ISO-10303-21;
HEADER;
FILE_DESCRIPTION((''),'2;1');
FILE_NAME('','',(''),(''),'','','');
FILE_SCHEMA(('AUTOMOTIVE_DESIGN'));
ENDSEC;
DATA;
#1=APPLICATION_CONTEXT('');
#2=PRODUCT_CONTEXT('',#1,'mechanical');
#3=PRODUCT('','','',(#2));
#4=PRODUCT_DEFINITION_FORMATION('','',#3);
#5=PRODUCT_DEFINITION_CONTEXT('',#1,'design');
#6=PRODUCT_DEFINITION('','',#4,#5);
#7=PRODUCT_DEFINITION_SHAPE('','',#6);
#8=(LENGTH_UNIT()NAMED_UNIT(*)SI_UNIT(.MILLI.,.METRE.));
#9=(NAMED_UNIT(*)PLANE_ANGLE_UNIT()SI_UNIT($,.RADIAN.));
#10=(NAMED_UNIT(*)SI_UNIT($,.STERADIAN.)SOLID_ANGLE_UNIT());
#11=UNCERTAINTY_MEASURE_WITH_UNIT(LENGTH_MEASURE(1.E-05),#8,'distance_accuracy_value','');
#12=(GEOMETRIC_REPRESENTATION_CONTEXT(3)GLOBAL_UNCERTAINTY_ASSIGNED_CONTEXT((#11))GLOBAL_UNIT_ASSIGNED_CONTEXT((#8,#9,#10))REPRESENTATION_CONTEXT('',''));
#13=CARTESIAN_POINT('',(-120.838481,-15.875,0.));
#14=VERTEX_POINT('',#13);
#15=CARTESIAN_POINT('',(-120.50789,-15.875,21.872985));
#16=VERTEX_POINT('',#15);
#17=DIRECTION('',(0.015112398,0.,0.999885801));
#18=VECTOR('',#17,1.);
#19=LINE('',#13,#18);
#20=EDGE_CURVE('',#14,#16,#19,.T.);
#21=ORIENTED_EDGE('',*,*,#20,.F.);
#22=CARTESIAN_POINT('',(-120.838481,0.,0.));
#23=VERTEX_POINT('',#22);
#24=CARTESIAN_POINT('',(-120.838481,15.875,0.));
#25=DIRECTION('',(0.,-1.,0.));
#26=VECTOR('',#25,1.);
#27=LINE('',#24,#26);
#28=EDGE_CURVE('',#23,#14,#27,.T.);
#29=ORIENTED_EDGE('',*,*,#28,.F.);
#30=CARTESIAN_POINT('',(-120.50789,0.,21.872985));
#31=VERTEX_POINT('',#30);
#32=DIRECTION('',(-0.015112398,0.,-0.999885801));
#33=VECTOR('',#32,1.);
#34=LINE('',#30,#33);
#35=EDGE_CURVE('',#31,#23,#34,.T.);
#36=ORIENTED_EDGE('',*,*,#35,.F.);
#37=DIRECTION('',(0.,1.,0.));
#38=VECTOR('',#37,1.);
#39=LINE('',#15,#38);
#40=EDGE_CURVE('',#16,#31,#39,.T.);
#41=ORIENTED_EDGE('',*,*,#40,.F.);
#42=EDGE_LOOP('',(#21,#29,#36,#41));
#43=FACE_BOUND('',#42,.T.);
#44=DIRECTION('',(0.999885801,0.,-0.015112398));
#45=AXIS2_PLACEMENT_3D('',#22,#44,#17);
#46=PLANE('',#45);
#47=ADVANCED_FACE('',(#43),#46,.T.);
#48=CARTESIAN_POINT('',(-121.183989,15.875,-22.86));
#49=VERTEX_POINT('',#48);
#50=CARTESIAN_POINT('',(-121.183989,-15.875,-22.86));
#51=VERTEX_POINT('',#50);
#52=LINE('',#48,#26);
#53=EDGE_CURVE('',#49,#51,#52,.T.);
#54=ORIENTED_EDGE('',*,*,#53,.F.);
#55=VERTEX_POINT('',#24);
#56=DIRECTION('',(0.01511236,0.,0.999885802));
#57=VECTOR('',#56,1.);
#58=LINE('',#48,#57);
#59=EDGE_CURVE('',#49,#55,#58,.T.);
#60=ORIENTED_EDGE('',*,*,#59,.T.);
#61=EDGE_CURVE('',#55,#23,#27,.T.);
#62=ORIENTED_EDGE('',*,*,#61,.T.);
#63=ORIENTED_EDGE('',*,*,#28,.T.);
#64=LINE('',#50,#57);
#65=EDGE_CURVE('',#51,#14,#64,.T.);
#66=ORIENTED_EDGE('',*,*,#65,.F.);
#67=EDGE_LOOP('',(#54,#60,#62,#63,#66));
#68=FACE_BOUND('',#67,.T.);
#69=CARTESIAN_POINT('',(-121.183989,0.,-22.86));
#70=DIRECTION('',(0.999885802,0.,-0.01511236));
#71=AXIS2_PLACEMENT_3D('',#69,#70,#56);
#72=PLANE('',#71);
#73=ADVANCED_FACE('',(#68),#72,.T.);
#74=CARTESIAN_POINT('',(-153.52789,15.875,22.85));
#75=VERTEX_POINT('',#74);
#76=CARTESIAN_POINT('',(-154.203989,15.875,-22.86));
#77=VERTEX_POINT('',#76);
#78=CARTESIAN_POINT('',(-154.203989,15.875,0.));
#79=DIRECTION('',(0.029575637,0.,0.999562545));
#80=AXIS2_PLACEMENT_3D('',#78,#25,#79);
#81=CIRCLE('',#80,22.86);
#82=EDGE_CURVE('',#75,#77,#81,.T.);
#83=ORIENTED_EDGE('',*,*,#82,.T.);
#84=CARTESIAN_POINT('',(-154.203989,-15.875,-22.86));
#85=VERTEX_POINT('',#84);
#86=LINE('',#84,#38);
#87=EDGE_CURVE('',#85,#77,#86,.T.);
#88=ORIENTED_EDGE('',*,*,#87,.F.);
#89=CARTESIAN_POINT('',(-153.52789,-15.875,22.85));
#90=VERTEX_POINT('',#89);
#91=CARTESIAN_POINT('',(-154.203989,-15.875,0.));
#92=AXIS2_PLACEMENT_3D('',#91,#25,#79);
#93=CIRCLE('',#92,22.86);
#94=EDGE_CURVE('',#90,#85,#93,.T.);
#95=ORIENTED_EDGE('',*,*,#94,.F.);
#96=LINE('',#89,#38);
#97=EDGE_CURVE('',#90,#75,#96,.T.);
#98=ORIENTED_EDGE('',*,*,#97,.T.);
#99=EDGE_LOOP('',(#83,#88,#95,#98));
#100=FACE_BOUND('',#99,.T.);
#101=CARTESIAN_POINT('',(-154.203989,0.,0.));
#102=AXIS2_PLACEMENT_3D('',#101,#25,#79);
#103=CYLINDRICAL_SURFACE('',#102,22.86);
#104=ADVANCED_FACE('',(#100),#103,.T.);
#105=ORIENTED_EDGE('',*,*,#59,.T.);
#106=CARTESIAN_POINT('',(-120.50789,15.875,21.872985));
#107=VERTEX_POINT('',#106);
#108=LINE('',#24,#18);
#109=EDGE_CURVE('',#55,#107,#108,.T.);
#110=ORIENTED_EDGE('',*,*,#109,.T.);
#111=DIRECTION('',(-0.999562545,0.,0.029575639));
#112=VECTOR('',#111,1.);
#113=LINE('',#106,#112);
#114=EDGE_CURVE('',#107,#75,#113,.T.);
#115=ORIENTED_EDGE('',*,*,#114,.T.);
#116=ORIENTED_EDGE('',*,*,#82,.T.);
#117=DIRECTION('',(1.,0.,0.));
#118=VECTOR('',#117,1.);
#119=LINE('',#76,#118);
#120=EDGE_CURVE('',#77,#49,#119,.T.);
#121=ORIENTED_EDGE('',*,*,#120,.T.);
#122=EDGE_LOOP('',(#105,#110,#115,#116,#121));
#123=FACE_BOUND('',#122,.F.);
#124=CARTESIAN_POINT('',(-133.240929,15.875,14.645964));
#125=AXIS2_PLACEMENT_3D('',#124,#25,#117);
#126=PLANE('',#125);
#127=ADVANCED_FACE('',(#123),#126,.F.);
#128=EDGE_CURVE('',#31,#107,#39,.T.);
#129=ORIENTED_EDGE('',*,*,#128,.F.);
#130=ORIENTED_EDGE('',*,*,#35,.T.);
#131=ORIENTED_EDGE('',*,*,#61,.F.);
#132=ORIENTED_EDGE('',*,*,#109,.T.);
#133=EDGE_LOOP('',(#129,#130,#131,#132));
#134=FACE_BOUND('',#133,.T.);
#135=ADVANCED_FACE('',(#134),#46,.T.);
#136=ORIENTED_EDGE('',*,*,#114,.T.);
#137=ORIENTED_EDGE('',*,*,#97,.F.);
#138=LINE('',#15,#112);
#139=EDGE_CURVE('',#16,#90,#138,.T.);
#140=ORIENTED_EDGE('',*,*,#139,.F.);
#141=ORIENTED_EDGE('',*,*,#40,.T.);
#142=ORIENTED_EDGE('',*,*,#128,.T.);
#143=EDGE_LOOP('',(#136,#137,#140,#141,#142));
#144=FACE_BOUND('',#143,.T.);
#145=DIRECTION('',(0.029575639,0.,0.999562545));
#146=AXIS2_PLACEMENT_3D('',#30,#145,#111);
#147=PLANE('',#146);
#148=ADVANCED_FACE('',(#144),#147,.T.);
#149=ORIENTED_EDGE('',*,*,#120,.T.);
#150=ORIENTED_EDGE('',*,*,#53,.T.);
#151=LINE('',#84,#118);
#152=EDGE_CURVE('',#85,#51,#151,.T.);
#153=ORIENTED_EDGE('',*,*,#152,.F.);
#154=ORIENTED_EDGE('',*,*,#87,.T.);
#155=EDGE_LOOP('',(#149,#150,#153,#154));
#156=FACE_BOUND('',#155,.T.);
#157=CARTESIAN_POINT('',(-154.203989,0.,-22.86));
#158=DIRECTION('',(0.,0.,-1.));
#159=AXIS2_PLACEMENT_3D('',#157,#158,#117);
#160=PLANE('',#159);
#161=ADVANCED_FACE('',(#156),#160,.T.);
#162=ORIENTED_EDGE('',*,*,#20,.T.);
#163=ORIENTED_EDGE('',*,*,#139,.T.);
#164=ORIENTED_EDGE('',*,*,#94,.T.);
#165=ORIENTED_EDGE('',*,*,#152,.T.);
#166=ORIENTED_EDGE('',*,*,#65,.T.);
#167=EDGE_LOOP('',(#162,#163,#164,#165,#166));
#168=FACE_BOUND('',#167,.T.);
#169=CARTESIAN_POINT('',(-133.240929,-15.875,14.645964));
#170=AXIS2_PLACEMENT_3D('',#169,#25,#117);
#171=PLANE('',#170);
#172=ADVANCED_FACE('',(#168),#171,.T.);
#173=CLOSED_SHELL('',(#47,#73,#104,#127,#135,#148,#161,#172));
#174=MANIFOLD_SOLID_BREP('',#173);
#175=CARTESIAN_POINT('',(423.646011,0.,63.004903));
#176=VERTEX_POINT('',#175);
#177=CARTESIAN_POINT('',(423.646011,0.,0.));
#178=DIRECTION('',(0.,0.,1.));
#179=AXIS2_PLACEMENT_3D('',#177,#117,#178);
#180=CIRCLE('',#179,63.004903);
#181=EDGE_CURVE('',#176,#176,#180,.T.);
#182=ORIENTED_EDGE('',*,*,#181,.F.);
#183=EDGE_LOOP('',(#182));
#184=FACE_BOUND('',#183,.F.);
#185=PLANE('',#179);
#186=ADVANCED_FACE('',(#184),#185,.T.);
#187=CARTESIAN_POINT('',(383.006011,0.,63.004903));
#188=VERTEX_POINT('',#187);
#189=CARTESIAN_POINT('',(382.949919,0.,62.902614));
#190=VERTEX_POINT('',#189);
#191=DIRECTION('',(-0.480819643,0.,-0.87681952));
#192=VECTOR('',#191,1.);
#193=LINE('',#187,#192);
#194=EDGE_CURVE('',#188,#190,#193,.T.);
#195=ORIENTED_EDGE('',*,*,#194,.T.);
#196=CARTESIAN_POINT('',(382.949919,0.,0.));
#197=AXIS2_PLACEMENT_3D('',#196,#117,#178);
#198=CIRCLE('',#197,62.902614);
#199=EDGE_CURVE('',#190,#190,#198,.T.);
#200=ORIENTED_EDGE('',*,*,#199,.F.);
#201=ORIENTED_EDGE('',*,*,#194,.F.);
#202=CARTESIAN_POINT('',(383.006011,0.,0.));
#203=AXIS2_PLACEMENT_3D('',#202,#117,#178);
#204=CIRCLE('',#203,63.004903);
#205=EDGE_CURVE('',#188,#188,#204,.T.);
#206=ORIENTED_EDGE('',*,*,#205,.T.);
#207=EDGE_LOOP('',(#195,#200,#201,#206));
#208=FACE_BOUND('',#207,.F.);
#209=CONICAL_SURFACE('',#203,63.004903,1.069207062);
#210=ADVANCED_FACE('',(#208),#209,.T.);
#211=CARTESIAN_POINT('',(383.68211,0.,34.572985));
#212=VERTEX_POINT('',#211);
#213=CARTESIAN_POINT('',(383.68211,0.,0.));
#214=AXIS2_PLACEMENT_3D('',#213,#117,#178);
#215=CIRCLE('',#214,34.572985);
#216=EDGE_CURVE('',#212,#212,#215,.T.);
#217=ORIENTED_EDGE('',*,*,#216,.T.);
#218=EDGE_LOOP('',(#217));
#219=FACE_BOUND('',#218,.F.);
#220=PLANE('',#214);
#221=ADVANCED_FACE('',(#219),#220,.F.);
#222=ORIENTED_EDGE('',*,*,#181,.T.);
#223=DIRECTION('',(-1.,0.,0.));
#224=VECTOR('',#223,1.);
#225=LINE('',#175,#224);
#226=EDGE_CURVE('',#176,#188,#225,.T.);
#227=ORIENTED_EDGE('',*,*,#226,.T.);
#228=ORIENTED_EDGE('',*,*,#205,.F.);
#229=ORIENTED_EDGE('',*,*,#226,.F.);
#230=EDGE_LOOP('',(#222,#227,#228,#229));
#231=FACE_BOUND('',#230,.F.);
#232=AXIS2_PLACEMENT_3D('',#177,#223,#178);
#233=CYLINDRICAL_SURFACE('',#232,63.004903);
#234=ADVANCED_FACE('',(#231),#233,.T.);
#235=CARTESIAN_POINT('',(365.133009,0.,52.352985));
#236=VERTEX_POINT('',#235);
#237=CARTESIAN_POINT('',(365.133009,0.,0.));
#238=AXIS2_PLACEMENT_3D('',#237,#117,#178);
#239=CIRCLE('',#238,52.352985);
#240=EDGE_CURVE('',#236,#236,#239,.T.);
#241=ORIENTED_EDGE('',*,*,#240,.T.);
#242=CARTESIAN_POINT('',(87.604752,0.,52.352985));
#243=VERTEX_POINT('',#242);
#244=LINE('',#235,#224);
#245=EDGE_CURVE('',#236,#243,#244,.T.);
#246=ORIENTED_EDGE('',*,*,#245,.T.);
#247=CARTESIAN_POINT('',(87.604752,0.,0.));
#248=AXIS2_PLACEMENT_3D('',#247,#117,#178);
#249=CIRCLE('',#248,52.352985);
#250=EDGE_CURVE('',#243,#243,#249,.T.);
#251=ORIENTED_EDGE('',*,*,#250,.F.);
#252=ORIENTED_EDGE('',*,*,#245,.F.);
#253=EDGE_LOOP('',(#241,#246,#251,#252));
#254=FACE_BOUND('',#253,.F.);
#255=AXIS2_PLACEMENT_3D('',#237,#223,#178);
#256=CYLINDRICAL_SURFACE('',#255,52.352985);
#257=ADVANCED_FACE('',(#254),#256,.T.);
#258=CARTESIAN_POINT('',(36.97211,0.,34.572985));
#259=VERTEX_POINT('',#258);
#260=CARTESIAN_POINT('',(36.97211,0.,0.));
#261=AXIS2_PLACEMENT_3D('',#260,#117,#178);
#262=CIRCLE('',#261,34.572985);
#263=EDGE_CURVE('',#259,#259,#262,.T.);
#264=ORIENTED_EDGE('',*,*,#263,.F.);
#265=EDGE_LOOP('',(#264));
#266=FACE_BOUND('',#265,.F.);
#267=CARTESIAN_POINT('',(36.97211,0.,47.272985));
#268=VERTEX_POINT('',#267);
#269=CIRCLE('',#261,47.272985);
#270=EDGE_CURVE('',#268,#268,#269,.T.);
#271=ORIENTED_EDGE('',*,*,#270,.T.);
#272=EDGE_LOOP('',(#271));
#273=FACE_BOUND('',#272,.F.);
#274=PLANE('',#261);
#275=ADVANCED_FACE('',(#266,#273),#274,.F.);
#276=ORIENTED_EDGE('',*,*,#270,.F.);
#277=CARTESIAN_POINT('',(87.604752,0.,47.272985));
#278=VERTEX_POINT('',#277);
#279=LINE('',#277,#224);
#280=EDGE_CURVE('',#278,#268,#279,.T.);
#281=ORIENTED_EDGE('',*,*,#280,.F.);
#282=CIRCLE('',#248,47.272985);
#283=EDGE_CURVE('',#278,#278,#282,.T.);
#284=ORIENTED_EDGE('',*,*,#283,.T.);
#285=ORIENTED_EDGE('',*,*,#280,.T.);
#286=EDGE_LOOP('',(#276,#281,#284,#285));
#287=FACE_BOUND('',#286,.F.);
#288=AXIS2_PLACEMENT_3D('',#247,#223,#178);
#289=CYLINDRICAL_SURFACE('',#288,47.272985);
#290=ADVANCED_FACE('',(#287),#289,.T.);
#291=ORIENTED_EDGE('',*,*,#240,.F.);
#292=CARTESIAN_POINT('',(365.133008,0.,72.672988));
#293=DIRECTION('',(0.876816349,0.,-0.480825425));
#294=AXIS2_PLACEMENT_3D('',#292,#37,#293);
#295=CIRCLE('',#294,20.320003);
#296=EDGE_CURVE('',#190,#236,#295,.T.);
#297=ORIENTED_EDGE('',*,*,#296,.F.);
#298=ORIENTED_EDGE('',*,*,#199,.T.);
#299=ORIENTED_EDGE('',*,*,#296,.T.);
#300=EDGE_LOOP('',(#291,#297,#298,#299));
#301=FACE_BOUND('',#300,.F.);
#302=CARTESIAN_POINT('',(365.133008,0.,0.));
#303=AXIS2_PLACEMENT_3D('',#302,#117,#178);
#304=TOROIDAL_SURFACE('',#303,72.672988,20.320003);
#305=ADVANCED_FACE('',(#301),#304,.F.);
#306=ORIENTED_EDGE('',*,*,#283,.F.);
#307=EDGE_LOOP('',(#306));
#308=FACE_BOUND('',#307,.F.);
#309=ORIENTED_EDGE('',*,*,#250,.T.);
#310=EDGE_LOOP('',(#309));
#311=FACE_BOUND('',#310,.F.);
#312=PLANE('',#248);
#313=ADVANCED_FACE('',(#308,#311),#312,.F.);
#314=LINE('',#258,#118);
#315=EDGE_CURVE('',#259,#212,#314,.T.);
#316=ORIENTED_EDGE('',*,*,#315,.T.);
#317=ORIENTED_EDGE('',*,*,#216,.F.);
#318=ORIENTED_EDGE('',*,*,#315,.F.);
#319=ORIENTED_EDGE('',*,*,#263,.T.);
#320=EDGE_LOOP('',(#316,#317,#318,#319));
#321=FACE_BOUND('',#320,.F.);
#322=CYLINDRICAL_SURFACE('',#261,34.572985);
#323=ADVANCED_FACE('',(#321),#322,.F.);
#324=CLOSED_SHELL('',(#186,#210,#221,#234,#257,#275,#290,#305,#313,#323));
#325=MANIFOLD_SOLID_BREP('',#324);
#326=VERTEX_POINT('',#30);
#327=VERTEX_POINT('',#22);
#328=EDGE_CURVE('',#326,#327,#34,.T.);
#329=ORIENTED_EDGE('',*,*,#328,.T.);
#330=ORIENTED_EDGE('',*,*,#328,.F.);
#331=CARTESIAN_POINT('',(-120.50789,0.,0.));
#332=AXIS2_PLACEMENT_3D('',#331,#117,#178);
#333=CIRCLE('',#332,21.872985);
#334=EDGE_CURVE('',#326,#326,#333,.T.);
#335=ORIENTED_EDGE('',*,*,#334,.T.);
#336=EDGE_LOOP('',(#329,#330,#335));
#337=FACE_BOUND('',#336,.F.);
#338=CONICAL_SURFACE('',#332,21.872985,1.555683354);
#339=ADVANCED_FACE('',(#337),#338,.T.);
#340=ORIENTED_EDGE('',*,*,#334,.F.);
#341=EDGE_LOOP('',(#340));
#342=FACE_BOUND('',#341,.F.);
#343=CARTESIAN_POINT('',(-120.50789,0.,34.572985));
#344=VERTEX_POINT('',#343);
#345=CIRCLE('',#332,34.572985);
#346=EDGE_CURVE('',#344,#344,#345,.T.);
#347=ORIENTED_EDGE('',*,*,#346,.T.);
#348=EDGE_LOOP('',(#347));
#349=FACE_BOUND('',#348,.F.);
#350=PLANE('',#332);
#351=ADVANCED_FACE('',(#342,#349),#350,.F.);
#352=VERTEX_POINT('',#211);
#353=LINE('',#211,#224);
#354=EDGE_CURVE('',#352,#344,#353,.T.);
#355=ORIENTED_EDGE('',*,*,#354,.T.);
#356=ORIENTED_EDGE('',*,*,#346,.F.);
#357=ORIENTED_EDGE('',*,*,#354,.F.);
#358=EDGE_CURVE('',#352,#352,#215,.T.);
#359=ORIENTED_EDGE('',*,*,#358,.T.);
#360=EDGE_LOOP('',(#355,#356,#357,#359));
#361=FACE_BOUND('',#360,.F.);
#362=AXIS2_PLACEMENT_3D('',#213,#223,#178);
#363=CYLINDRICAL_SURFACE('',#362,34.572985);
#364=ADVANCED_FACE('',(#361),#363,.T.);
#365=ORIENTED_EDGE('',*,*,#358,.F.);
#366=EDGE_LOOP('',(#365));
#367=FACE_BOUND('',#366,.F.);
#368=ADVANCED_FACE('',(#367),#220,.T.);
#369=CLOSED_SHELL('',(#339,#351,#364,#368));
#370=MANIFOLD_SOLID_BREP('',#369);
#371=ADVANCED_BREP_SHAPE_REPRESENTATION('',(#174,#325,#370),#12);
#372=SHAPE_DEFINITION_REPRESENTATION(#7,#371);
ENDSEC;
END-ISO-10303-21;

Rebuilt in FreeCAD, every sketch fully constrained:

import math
import FreeCAD as App
import Part
import Sketcher
from FreeCAD import Vector
Q = App.Units.Quantity


def add_polygon(sketch, points):
    """Adds a closed chain of lines whose ends are joined by coincident constraints."""
    first, n = sketch.GeometryCount, len(points)
    for a, b in zip(points, points[1:] + points[:1]):
        sketch.addGeometry(Part.LineSegment(App.Vector(*a, 0), App.Vector(*b, 0)), False)
    for i in range(n):
        sketch.addConstraint(Sketcher.Constraint("Coincident", first + i, 2, first + (i + 1) % n, 1))

doc = App.newDocument("Part")
params = doc.addObject("Spreadsheet::Sheet", "Params")
for row, (alias, value) in enumerate([
    ("sketch1_radius", "0.8000001 in"),
    ("sketch1_width", "1.6 in"),
    ("sketch1_height", "0.2 in"),
    ("sketch1_height2", "0.5 in"),
    ("sketch1_width2", "13.65 in"),
    ("revolution_angle", "360 deg"),
    ("sketch2_height", "0.5 in"),
    ("sketch2_width", "19.85 in"),
    ("revolution2_angle", "360 deg"),
    ("sketch3_radius", "0.9 in"),
    ("sketch3_width", "1.3 in"),
    ("pad1_length", "1.25 in"),
], start=1):
    params.set(f"A{row}", alias)
    params.set(f"B{row}", "=" + value)
    params.setAlias(f"B{row}", alias)

body = doc.addObject("PartDesign::Body", "Body")

sketch1 = body.newObject("Sketcher::SketchObject", "Sketch")
sketch1.AttachmentSupport = (doc.getObject("XZ_Plane"), [""])
sketch1.MapMode = "FlatFace"
sketch1.addGeometry([
    Part.LineSegment(Vector(383.68211, 34.572985, 0), Vector(383.68211, 0, 0)),
    Part.LineSegment(Vector(383.68211, 0, 0), Vector(423.646011, 0, 0)),
    Part.LineSegment(Vector(423.646011, 0, 0), Vector(423.646011, 63.004903, 0)),
    Part.LineSegment(Vector(423.646011, 63.004903, 0), Vector(383.006011, 63.004903, 0)),
    Part.LineSegment(Vector(383.006011, 63.004903, 0), Vector(382.949919, 62.902614, 0)),
    Part.ArcOfCircle(Part.Circle(Vector(365.133008, 72.672988, 0), Vector(0, 0, 1), 20.320003), math.radians(-89.999997), math.radians(-28.739326)),
    Part.LineSegment(Vector(365.133009, 52.352985, 0), Vector(87.604752, 52.352985, 0)),
    Part.LineSegment(Vector(87.604752, 52.352985, 0), Vector(87.604752, 47.272985, 0)),
    Part.LineSegment(Vector(87.604752, 47.272985, 0), Vector(36.97211, 47.272985, 0)),
    Part.LineSegment(Vector(36.97211, 47.272985, 0), Vector(36.97211, 34.572985, 0)),
    Part.LineSegment(Vector(36.97211, 34.572985, 0), Vector(383.68211, 34.572985, 0)),
], False)
sketch1.addConstraint([
    Sketcher.Constraint("Coincident", 0, 2, 1, 1),
    Sketcher.Constraint("Coincident", 1, 2, 2, 1),
    Sketcher.Constraint("Coincident", 2, 2, 3, 1),
    Sketcher.Constraint("Coincident", 3, 2, 4, 1),
    Sketcher.Constraint("Coincident", 4, 2, 5, 2),
    Sketcher.Constraint("Tangent", 5, 1, 6, 1),
    Sketcher.Constraint("Coincident", 6, 2, 7, 1),
    Sketcher.Constraint("Coincident", 7, 2, 8, 1),
    Sketcher.Constraint("Coincident", 8, 2, 9, 1),
    Sketcher.Constraint("Coincident", 9, 2, 10, 1),
    Sketcher.Constraint("Coincident", 10, 2, 0, 1),
    Sketcher.Constraint("Vertical", 0),
    Sketcher.Constraint("Horizontal", 1),
    Sketcher.Constraint("Vertical", 2),
    Sketcher.Constraint("Horizontal", 3),
    Sketcher.Constraint("Horizontal", 6),
    Sketcher.Constraint("Vertical", 7),
    Sketcher.Constraint("Horizontal", 8),
    Sketcher.Constraint("Vertical", 9),
    Sketcher.Constraint("Horizontal", 10),
    Sketcher.Constraint("PointOnObject", 0, 2, -1),
    Sketcher.Constraint("Radius", 5, Q("0.8000001 in")),
    Sketcher.Constraint("DistanceX", 3, 2, 3, 1, Q("1.6 in")),
    Sketcher.Constraint("DistanceY", 7, 2, 7, 1, Q("0.2 in")),
    Sketcher.Constraint("DistanceY", 9, 2, 9, 1, Q("0.5 in")),
    Sketcher.Constraint("DistanceX", 10, 1, 10, 2, Q("13.65 in")),
    Sketcher.Constraint("DistanceX", 1, 1, 1, 2, Q("39.963901 mm")),
    Sketcher.Constraint("DistanceX", 5, 3, 0, 2, Q("18.549102 mm")),
    Sketcher.Constraint("Distance", 4, Q("0.116659 mm")),
    Sketcher.Constraint("DistanceX", 6, 2, 6, 1, Q("277.528257 mm")),
    Sketcher.Constraint("DistanceY", 0, 2, 0, 1, Q("34.572985 mm")),
    Sketcher.Constraint("DistanceY", 2, 1, 2, 2, Q("63.004903 mm")),
    Sketcher.Constraint("DistanceX", -1, 1, 5, 3, Q("365.133008 mm")),
])
sketch1.setExpression("Constraints[21]", "Params.sketch1_radius")
sketch1.setExpression("Constraints[22]", "Params.sketch1_width")
sketch1.setExpression("Constraints[23]", "Params.sketch1_height")
sketch1.setExpression("Constraints[24]", "Params.sketch1_height2")
sketch1.setExpression("Constraints[25]", "Params.sketch1_width2")
revolution = body.newObject("PartDesign::Revolution", "Revolution")
revolution.Profile = sketch1
revolution.ReferenceAxis = (sketch1, ["H_Axis"])
revolution.setExpression("Angle", "Params.revolution_angle")
body2 = doc.addObject("PartDesign::Body", "Body001")
body2.AllowCompound = True

sketch2 = body2.newObject("Sketcher::SketchObject", "Sketch001")
sketch2.AttachmentSupport = (doc.getObject("XZ_Plane001"), [""])
sketch2.MapMode = "FlatFace"
add_polygon(sketch2, [(-120.50789, 21.872985), (-120.838481, 0), (383.68211, 0), (383.68211, 34.572985), (-120.50789, 34.572985)])
sketch2.addConstraint([
    Sketcher.Constraint("Horizontal", 1),
    Sketcher.Constraint("Vertical", 2),
    Sketcher.Constraint("Horizontal", 3),
    Sketcher.Constraint("Vertical", 4),
    Sketcher.Constraint("PointOnObject", 0, 2, -1),
    Sketcher.Constraint("DistanceY", 4, 2, 4, 1, Q("0.5 in")),
    Sketcher.Constraint("DistanceX", 3, 2, 3, 1, Q("19.85 in")),
    Sketcher.Constraint("DistanceX", 1, 1, 1, 2, Q("504.520591 mm")),
    Sketcher.Constraint("DistanceY", 2, 1, 2, 2, Q("34.572985 mm")),
    Sketcher.Constraint("DistanceX", 0, 2, -1, 1, Q("120.838481 mm")),
])
sketch2.setExpression("Constraints[10]", "Params.sketch2_height")
sketch2.setExpression("Constraints[11]", "Params.sketch2_width")
revolution2 = body2.newObject("PartDesign::Revolution", "Revolution001")
revolution2.Profile = sketch2
revolution2.ReferenceAxis = (sketch2, ["H_Axis"])
revolution2.setExpression("Angle", "Params.revolution2_angle")

sketch3 = body2.newObject("Sketcher::SketchObject", "Sketch002")
sketch3.AttachmentSupport = (doc.getObject("XZ_Plane001"), [""])
sketch3.MapMode = "FlatFace"
sketch3.addGeometry([
    Part.LineSegment(Vector(-154.203989, -22.86, 0), Vector(-121.183989, -22.86, 0)),
    Part.LineSegment(Vector(-121.183989, -22.86, 0), Vector(-120.838481, 0, 0)),
    Part.LineSegment(Vector(-120.838481, 0, 0), Vector(-120.50789, 21.872985, 0)),
    Part.LineSegment(Vector(-120.50789, 21.872985, 0), Vector(-153.52789, 22.85, 0)),
    Part.ArcOfCircle(Part.Circle(Vector(-154.203989, 0, 0), Vector(0, 0, 1), 22.86), math.radians(88.305194), math.radians(270)),
], False)
sketch3.addConstraint([
    Sketcher.Constraint("Coincident", 0, 2, 1, 1),
    Sketcher.Constraint("Coincident", 1, 2, 2, 1),
    Sketcher.Constraint("Coincident", 2, 2, 3, 1),
    Sketcher.Constraint("Tangent", 3, 2, 4, 1),
    Sketcher.Constraint("Tangent", 4, 2, 0, 1),
    Sketcher.Constraint("Horizontal", 0),
    Sketcher.Constraint("PointOnObject", 4, 3, -1),
    Sketcher.Constraint("PointOnObject", 1, 2, -1),
    Sketcher.Constraint("Parallel", 1, 2),
    Sketcher.Constraint("Radius", 4, Q("0.9 in")),
    Sketcher.Constraint("DistanceX", 0, 1, 0, 2, Q("1.3 in")),
    Sketcher.Constraint("DistanceX", 3, 2, 2, 2, Q("1.3 in")),
    Sketcher.Constraint("DistanceY", -1, 1, 3, 2, Q("22.85 mm")),
    Sketcher.Constraint("DistanceX", 4, 3, -1, 1, Q("154.203989 mm")),
])
sketch3.setExpression("Constraints[9]", "Params.sketch3_radius")
sketch3.setExpression("Constraints[10]", "Params.sketch3_width")
pad1 = body2.newObject("PartDesign::Pad", "Pad")
pad1.Profile = sketch3
pad1.setExpression("Length", "Params.pad1_length")
pad1.Midplane = True

doc.recompute()
